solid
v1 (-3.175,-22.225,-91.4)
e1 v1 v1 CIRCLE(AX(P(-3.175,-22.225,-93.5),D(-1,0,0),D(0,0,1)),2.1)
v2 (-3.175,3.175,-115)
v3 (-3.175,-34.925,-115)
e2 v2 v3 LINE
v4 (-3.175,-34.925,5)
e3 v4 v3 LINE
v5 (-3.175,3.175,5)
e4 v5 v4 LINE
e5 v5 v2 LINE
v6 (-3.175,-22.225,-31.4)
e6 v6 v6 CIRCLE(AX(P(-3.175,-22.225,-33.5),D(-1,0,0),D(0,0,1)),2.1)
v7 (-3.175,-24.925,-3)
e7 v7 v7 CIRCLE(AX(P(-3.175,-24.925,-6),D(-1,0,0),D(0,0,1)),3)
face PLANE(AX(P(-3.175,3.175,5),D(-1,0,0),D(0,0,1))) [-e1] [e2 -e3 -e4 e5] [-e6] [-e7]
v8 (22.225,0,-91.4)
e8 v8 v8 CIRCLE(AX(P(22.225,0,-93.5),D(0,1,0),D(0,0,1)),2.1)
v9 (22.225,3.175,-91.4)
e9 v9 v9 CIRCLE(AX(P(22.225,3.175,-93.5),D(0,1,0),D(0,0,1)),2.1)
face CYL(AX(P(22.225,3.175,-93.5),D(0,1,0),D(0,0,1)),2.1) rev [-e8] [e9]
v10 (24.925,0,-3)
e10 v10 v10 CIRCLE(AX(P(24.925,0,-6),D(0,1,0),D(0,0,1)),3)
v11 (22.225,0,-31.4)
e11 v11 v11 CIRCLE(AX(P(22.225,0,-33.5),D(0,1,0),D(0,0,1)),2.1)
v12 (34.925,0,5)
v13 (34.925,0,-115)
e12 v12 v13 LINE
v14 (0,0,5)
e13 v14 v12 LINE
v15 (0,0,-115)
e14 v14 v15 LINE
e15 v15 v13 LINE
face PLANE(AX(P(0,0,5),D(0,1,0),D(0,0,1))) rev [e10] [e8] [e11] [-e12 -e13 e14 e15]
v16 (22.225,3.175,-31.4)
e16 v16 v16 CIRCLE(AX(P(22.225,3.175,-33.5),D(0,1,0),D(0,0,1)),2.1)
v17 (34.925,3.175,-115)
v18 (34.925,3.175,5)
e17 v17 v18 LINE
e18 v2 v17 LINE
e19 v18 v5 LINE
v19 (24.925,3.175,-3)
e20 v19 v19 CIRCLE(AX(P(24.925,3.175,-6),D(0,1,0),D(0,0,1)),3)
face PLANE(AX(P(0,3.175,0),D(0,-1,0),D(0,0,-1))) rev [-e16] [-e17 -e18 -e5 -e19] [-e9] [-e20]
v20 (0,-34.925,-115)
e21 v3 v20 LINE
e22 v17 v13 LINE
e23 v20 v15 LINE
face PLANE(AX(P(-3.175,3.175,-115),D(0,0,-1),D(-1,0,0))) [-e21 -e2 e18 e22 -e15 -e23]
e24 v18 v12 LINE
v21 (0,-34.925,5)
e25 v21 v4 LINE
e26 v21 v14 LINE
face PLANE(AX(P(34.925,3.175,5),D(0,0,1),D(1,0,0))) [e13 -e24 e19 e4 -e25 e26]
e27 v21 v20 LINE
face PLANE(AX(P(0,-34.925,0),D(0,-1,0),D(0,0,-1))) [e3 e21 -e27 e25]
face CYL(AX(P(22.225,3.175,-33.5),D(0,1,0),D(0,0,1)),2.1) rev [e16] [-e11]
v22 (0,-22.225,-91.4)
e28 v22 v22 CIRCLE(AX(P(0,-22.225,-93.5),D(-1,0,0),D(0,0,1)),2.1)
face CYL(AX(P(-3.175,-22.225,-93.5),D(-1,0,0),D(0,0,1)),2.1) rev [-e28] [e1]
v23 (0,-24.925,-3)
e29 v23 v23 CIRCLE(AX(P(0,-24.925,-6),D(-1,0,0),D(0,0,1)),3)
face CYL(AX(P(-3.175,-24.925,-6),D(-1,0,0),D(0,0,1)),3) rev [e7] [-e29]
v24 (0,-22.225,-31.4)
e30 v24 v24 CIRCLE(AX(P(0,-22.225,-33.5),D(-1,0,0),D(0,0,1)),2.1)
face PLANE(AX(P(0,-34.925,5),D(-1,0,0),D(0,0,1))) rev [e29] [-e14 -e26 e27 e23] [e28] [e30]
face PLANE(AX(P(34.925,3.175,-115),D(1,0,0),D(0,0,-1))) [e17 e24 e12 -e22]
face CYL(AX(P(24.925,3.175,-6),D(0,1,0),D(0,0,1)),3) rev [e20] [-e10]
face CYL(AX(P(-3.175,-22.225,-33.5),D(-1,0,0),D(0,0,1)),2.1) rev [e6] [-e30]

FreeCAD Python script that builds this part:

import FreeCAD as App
import Part
import Sketcher
from FreeCAD import Vector
Q = App.Units.Quantity

doc = App.newDocument("Part")
params = doc.addObject("Spreadsheet::Sheet", "Params")
for row, (alias, value) in enumerate([
    ("sketch1_height", "120 mm"),
    ("sketch1_width", "38.1 mm"),
    ("pad1_length", "38.1 mm"),
    ("sketch3_diameter", "4.2 mm"),
    ("hole_diameter", "4.2 mm"),
    ("sketch4_diameter", "6 mm"),
    ("hole2_diameter", "6 mm"),
    ("sketch5_diameter", "4.2 mm"),
    ("hole3_diameter", "4.2 mm"),
    ("hole3_depth", "38.1 mm"),
    ("sketch6_diameter", "6 mm"),
    ("hole4_diameter", "6 mm"),
    ("hole4_depth", "38.1 mm"),
    ("sketch7_diameter", "6 mm"),
    ("hole5_diameter", "6 mm"),
    ("hole5_depth", "38.1 mm"),
    ("sketch8_diameter", "4.2 mm"),
    ("hole6_diameter", "4.2 mm"),
    ("sketch9_diameter", "6 mm"),
    ("sketch9_diameter2", "4.2 mm"),
    ("pad2_length", "3.175 mm"),
    ("sketch10_diameter", "6 mm"),
    ("sketch10_diameter2", "4.2 mm"),
    ("pad3_length", "3.175 mm"),
], start=1):
    params.set(f"A{row}", alias)
    params.set(f"B{row}", "=" + value)
    params.setAlias(f"B{row}", alias)

body = doc.addObject("PartDesign::Body", "Body")

sketch1 = body.newObject("Sketcher::SketchObject", "Sketch")
sketch1.AttachmentSupport = (doc.getObject("XZ_Plane"), [""])
sketch1.MapMode = "FlatFace"
sketch1.AttachmentOffset = App.Placement(Vector(0, 0, 34.925), App.Rotation())
sketch1.addGeometry(Part.LineSegment(Vector(-3, 5, 0), Vector(-3, -115, 0)), False)
sketch1.addGeometry(Part.LineSegment(Vector(-3, -115, 0), Vector(35, -115, 0)), False)
sketch1.addGeometry(Part.LineSegment(Vector(35, -115, 0), Vector(35, 5, 0)), False)
sketch1.addGeometry(Part.LineSegment(Vector(35, 5, 0), Vector(-3, 5, 0)), False)
sketch1.addConstraint(Sketcher.Constraint("Coincident", 0, 2, 1, 1))
sketch1.addConstraint(Sketcher.Constraint("Coincident", 1, 2, 2, 1))
sketch1.addConstraint(Sketcher.Constraint("Coincident", 2, 2, 3, 1))
sketch1.addConstraint(Sketcher.Constraint("Coincident", 3, 2, 0, 1))
sketch1.addConstraint(Sketcher.Constraint("Vertical", 0))
sketch1.addConstraint(Sketcher.Constraint("Horizontal", 1))
sketch1.addConstraint(Sketcher.Constraint("Vertical", 2))
sketch1.addConstraint(Sketcher.Constraint("Horizontal", 3))
sketch1.addConstraint(Sketcher.Constraint("DistanceY", 0, 2, 0, 1, Q("120 mm")))
sketch1.addConstraint(Sketcher.Constraint("DistanceX", 1, 1, 1, 2, Q("38.1 mm")))
sketch1.addConstraint(Sketcher.Constraint("DistanceY", 0, 2, -1, 1, Q("115 mm")))
sketch1.addConstraint(Sketcher.Constraint("DistanceX", 0, 2, -1, 1, Q("3.175 mm")))
sketch1.setExpression("Constraints[8]", "Params.sketch1_height")
sketch1.setExpression("Constraints[9]", "Params.sketch1_width")
pad1 = body.newObject("PartDesign::Pad", "Pad")
pad1.Profile = sketch1
pad1.setExpression("Length", "Params.pad1_length")
pad1.Reversed = True

sketch2 = body.newObject("Sketcher::SketchObject", "Sketch001")
sketch2.AttachmentSupport = (doc.getObject("XY_Plane"), [""])
sketch2.MapMode = "FlatFace"
sketch2.AttachmentOffset = App.Placement(Vector(0, 0, -115), App.Rotation())
sketch2.addGeometry(Part.LineSegment(Vector(35, 0, 0), Vector(35, -35, 0)), False)
sketch2.addGeometry(Part.LineSegment(Vector(35, -35, 0), Vector(0, -35, 0)), False)
sketch2.addGeometry(Part.LineSegment(Vector(0, -35, 0), Vector(0, 0, 0)), False)
sketch2.addGeometry(Part.LineSegment(Vector(0, 0, 0), Vector(35, 0, 0)), False)
sketch2.addConstraint(Sketcher.Constraint("Coincident", 0, 2, 1, 1))
sketch2.addConstraint(Sketcher.Constraint("Coincident", 1, 2, 2, 1))
sketch2.addConstraint(Sketcher.Constraint("Coincident", 2, 2, 3, 1))
sketch2.addConstraint(Sketcher.Constraint("Coincident", 3, 2, 0, 1))
sketch2.addConstraint(Sketcher.Constraint("Vertical", 0))
sketch2.addConstraint(Sketcher.Constraint("Horizontal", 1))
sketch2.addConstraint(Sketcher.Constraint("Vertical", 2))
sketch2.addConstraint(Sketcher.Constraint("Horizontal", 3))
sketch2.addConstraint(Sketcher.Constraint("Coincident", 2, 2, -1, 1))
sketch2.addConstraint(Sketcher.Constraint("Equal", 3, 0))
sketch2.addConstraint(Sketcher.Constraint("DistanceX", 1, 2, 1, 1, Q("34.925 mm")))
pocket1 = body.newObject("PartDesign::Pocket", "Pocket")
pocket1.Profile = sketch2
pocket1.Type = "ThroughAll"
pocket1.Reversed = True

sketch3 = body.newObject("Sketcher::SketchObject", "Sketch002")
sketch3.AttachmentSupport = (doc.getObject("XZ_Plane"), [""])
sketch3.MapMode = "FlatFace"
sketch3.addGeometry(Part.Circle(Vector(5, -36, 0), Vector(0, 0, 1), 2.1), False)
sketch3.addGeometry(Part.Circle(Vector(5, -91, 0), Vector(0, 0, 1), 2.1), False)
sketch3.addConstraint(Sketcher.Constraint("Equal", 0, 1))
sketch3.addConstraint(Sketcher.Constraint("Vertical", 0, 3, 1, 3))
sketch3.addConstraint(Sketcher.Constraint("Diameter", 0, Q("4.2 mm")))
sketch3.addConstraint(Sketcher.Constraint("DistanceX", -1, 1, 0, 3, Q("5 mm")))
sketch3.addConstraint(Sketcher.Constraint("DistanceY", 0, 3, -1, 1, Q("35.97 mm")))
sketch3.addConstraint(Sketcher.Constraint("DistanceY", 1, 3, -1, 1, Q("91.03 mm")))
sketch3.setExpression("Constraints[2]", "Params.sketch3_diameter")
doc.recompute()
hole = body.newObject("PartDesign::Hole", "Hole")
hole.Profile = sketch3
hole.ThreadType = "None"
hole.setExpression("Diameter", "Params.hole_diameter")
hole.DepthType = "ThroughAll"

sketch4 = body.newObject("Sketcher::SketchObject", "Sketch003")
sketch4.AttachmentSupport = (doc.getObject("XZ_Plane"), [""])
sketch4.MapMode = "FlatFace"
sketch4.addGeometry(Part.Circle(Vector(22.2, -106.5, 0), Vector(0, 0, 1), 3), False)
sketch4.addGeometry(Part.Circle(Vector(22.2, -46.5, 0), Vector(0, 0, 1), 3), False)
sketch4.addConstraint(Sketcher.Constraint("Equal", 0, 1))
sketch4.addConstraint(Sketcher.Constraint("Vertical", 0, 3, 1, 3))
sketch4.addConstraint(Sketcher.Constraint("Diameter", 0, Q("6 mm")))
sketch4.addConstraint(Sketcher.Constraint("DistanceY", 0, 3, 1, 3, Q("60 mm")))
sketch4.addConstraint(Sketcher.Constraint("DistanceY", 0, 3, -1, 1, Q("106.5 mm")))
sketch4.addConstraint(Sketcher.Constraint("DistanceX", -1, 1, 0, 3, Q("22.225 mm")))
sketch4.setExpression("Constraints[2]", "Params.sketch4_diameter")
doc.recompute()
hole2 = body.newObject("PartDesign::Hole", "Hole001")
hole2.Profile = sketch4
hole2.ThreadType = "None"
hole2.setExpression("Diameter", "Params.hole2_diameter")
hole2.DepthType = "ThroughAll"

sketch5 = body.newObject("Sketcher::SketchObject", "Sketch004")
sketch5.AttachmentSupport = (doc.getObject("XZ_Plane"), [""])
sketch5.MapMode = "FlatFace"
sketch5.AttachmentOffset = App.Placement(Vector(0, 0, -3.175), App.Rotation())
sketch5.addGeometry(Part.Circle(Vector(22.2, -33.5, 0), Vector(0, 0, 1), 2.1), False)
sketch5.addGeometry(Part.Circle(Vector(22.2, -93.5, 0), Vector(0, 0, 1), 2.1), False)
sketch5.addGeometry(Part.Circle(Vector(29.3, -100.6, 0), Vector(0, 0, 1), 2.1), False)
sketch5.addGeometry(Part.Circle(Vector(29.3, -26.4, 0), Vector(0, 0, 1), 2.1), False)
sketch5.addConstraint(Sketcher.Constraint("Equal", 0, 1))
sketch5.addConstraint(Sketcher.Constraint("Equal", 1, 2))
sketch5.addConstraint(Sketcher.Constraint("Equal", 2, 3))
sketch5.addConstraint(Sketcher.Constraint("Vertical", 0, 3, 1, 3))
sketch5.addConstraint(Sketcher.Constraint("Vertical", 2, 3, 3, 3))
sketch5.addConstraint(Sketcher.Constraint("Diameter", 0, Q("4.2 mm")))
sketch5.addConstraint(Sketcher.Constraint("DistanceY", 1, 3, 0, 3, Q("60 mm")))
sketch5.addConstraint(Sketcher.Constraint("DistanceY", 0, 3, -1, 1, Q("33.5 mm")))
sketch5.addConstraint(Sketcher.Constraint("DistanceX", -1, 1, 0, 3, Q("22.225 mm")))
sketch5.addConstraint(Sketcher.Constraint("DistanceX", -1, 1, 2, 3, Q("29.296068 mm")))
sketch5.addConstraint(Sketcher.Constraint("DistanceY", 2, 3, -1, 1, Q("100.571068 mm")))
sketch5.addConstraint(Sketcher.Constraint("DistanceY", 3, 3, -1, 1, Q("26.428932 mm")))
sketch5.setExpression("Constraints[5]", "Params.sketch5_diameter")
doc.recompute()
hole3 = body.newObject("PartDesign::Hole", "Hole002")
hole3.Profile = sketch5
hole3.ThreadType = "None"
hole3.setExpression("Diameter", "Params.hole3_diameter")
hole3.DepthType = "Dimension"
hole3.setExpression("Depth", "Params.hole3_depth")
hole3.DrillPoint = "Flat"
hole3.Reversed = True

sketch6 = body.newObject("Sketcher::SketchObject", "Sketch005")
sketch6.AttachmentSupport = (doc.getObject("XZ_Plane"), [""])
sketch6.MapMode = "FlatFace"
sketch6.AttachmentOffset = App.Placement(Vector(0, 0, -3.175), App.Rotation())
sketch6.addGeometry(Part.Circle(Vector(24.9, -6, 0), Vector(0, 0, 1), 3), False)
sketch6.addConstraint(Sketcher.Constraint("Diameter", 0, Q("6 mm")))
sketch6.addConstraint(Sketcher.Constraint("DistanceY", 0, 3, -1, 1, Q("6 mm")))
sketch6.addConstraint(Sketcher.Constraint("DistanceX", -1, 1, 0, 3, Q("24.925 mm")))
sketch6.setExpression("Constraints[0]", "Params.sketch6_diameter")
doc.recompute()
hole4 = body.newObject("PartDesign::Hole", "Hole003")
hole4.Profile = sketch6
hole4.ThreadType = "None"
hole4.setExpression("Diameter", "Params.hole4_diameter")
hole4.DepthType = "Dimension"
hole4.setExpression("Depth", "Params.hole4_depth")
hole4.DrillPoint = "Flat"
hole4.Reversed = True

sketch7 = body.newObject("Sketcher::SketchObject", "Sketch006")
sketch7.AttachmentSupport = (doc.getObject("YZ_Plane"), [""])
sketch7.MapMode = "FlatFace"
sketch7.AttachmentOffset = App.Placement(Vector(0, 0, -3.175), App.Rotation())
sketch7.addGeometry(Part.Circle(Vector(-24.9, -6, 0), Vector(0, 0, 1), 3), False)
sketch7.addGeometry(Part.Circle(Vector(-22.2, -106.5, 0), Vector(0, 0, 1), 3), False)
sketch7.addGeometry(Part.Circle(Vector(-22.2, -46.5, 0), Vector(0, 0, 1), 3), False)
sketch7.addConstraint(Sketcher.Constraint("Equal", 0, 1))
sketch7.addConstraint(Sketcher.Constraint("Equal", 1, 2))
sketch7.addConstraint(Sketcher.Constraint("Vertical", 1, 3, 2, 3))
sketch7.addConstraint(Sketcher.Constraint("Diameter", 0, Q("6 mm")))
sketch7.addConstraint(Sketcher.Constraint("DistanceY", 0, 3, -1, 1, Q("6 mm")))
sketch7.addConstraint(Sketcher.Constraint("DistanceY", 1, 3, 2, 3, Q("60 mm")))
sketch7.addConstraint(Sketcher.Constraint("DistanceY", 1, 3, -1, 1, Q("106.5 mm")))
sketch7.addConstraint(Sketcher.Constraint("DistanceX", 0, 3, 1, 3, Q("2.7 mm")))
sketch7.addConstraint(Sketcher.Constraint("DistanceX", 0, 3, -1, 1, Q("24.925 mm")))
sketch7.setExpression("Constraints[3]", "Params.sketch7_diameter")
doc.recompute()
hole5 = body.newObject("PartDesign::Hole", "Hole004")
hole5.Profile = sketch7
hole5.ThreadType = "None"
hole5.setExpression("Diameter", "Params.hole5_diameter")
hole5.DepthType = "Dimension"
hole5.setExpression("Depth", "Params.hole5_depth")
hole5.DrillPoint = "Flat"
hole5.Reversed = True

sketch8 = body.newObject("Sketcher::SketchObject", "Sketch007")
sketch8.AttachmentSupport = (doc.getObject("YZ_Plane"), [""])
sketch8.MapMode = "FlatFace"
sketch8.AttachmentOffset = App.Placement(Vector(0, 0, -3.175), App.Rotation())
sketch8.addGeometry(Part.Circle(Vector(-22.2, -93.5, 0), Vector(0, 0, 1), 2.1), False)
sketch8.addGeometry(Part.Circle(Vector(-22.2, -33.5, 0), Vector(0, 0, 1), 2.1), False)
sketch8.addGeometry(Part.Circle(Vector(-5, -36, 0), Vector(0, 0, 1), 2.1), False)
sketch8.addGeometry(Part.Circle(Vector(-5, -91, 0), Vector(0, 0, 1), 2.1), False)
sketch8.addGeometry(Part.Circle(Vector(-29.3, -100.6, 0), Vector(0, 0, 1), 2.1), False)
sketch8.addGeometry(Part.Circle(Vector(-29.3, -26.4, 0), Vector(0, 0, 1), 2.1), False)
sketch8.addConstraint(Sketcher.Constraint("Equal", 0, 1))
sketch8.addConstraint(Sketcher.Constraint("Equal", 1, 2))
sketch8.addConstraint(Sketcher.Constraint("Equal", 2, 3))
sketch8.addConstraint(Sketcher.Constraint("Equal", 3, 4))
sketch8.addConstraint(Sketcher.Constraint("Equal", 4, 5))
sketch8.addConstraint(Sketcher.Constraint("Vertical", 0, 3, 1, 3))
sketch8.addConstraint(Sketcher.Constraint("Vertical", 2, 3, 3, 3))
sketch8.addConstraint(Sketcher.Constraint("Vertical", 4, 3, 5, 3))
sketch8.addConstraint(Sketcher.Constraint("Diameter", 0, Q("4.2 mm")))
sketch8.addConstraint(Sketcher.Constraint("DistanceX", 2, 3, -1, 1, Q("5 mm")))
sketch8.addConstraint(Sketcher.Constraint("DistanceY", 0, 3, 1, 3, Q("60 mm")))
sketch8.addConstraint(Sketcher.Constraint("DistanceY", 0, 3, -1, 1, Q("93.5 mm")))
sketch8.addConstraint(Sketcher.Constraint("DistanceY", 2, 3, -1, 1, Q("35.97 mm")))
sketch8.addConstraint(Sketcher.Constraint("DistanceY", 3, 3, -1, 1, Q("91.03 mm")))
sketch8.addConstraint(Sketcher.Constraint("DistanceX", 0, 3, -1, 1, Q("22.225 mm")))
sketch8.addConstraint(Sketcher.Constraint("DistanceX", 4, 3, -1, 1, Q("29.296068 mm")))
sketch8.addConstraint(Sketcher.Constraint("DistanceY", 4, 3, -1, 1, Q("100.571068 mm")))
sketch8.addConstraint(Sketcher.Constraint("DistanceY", 5, 3, -1, 1, Q("26.428932 mm")))
sketch8.setExpression("Constraints[8]", "Params.sketch8_diameter")
doc.recompute()
hole6 = body.newObject("PartDesign::Hole", "Hole005")
hole6.Profile = sketch8
hole6.ThreadType = "None"
hole6.setExpression("Diameter", "Params.hole6_diameter")
hole6.DepthType = "ThroughAll"
hole6.Reversed = True

sketch9 = body.newObject("Sketcher::SketchObject", "Sketch008")
sketch9.AttachmentSupport = (doc.getObject("XZ_Plane"), [""])
sketch9.MapMode = "FlatFace"
sketch9.AttachmentOffset = App.Placement(Vector(0, 0, -3.175), App.Rotation())
sketch9.addGeometry(Part.Circle(Vector(29.3, -26.4, 0), Vector(0, 0, 1), 2.1), False)
sketch9.addGeometry(Part.Circle(Vector(29.3, -100.6, 0), Vector(0, 0, 1), 2.1), False)
sketch9.addGeometry(Part.Circle(Vector(22.2, -106.5, 0), Vector(0, 0, 1), 3), False)
sketch9.addGeometry(Part.Circle(Vector(22.2, -46.5, 0), Vector(0, 0, 1), 3), False)
sketch9.addGeometry(Part.Circle(Vector(5, -36, 0), Vector(0, 0, 1), 2.1), False)
sketch9.addGeometry(Part.Circle(Vector(5, -91, 0), Vector(0, 0, 1), 2.1), False)
sketch9.addConstraint(Sketcher.Constraint("Equal", 0, 1))
sketch9.addConstraint(Sketcher.Constraint("Equal", 2, 3))
sketch9.addConstraint(Sketcher.Constraint("Equal", 1, 4))
sketch9.addConstraint(Sketcher.Constraint("Equal", 4, 5))
sketch9.addConstraint(Sketcher.Constraint("Vertical", 0, 3, 1, 3))
sketch9.addConstraint(Sketcher.Constraint("Vertical", 2, 3, 3, 3))
sketch9.addConstraint(Sketcher.Constraint("Vertical", 4, 3, 5, 3))
sketch9.addConstraint(Sketcher.Constraint("Diameter", 2, Q("6 mm")))
sketch9.addConstraint(Sketcher.Constraint("Diameter", 0, Q("4.2 mm")))
sketch9.addConstraint(Sketcher.Constraint("DistanceX", -1, 1, 4, 3, Q("5 mm")))
sketch9.addConstraint(Sketcher.Constraint("DistanceY", 2, 3, 3, 3, Q("60 mm")))
sketch9.addConstraint(Sketcher.Constraint("DistanceY", 2, 3, -1, 1, Q("106.5 mm")))
sketch9.addConstraint(Sketcher.Constraint("DistanceY", 4, 3, -1, 1, Q("35.97 mm")))
sketch9.addConstraint(Sketcher.Constraint("DistanceY", 5, 3, -1, 1, Q("91.03 mm")))
sketch9.addConstraint(Sketcher.Constraint("DistanceX", -1, 1, 2, 3, Q("22.225 mm")))
sketch9.addConstraint(Sketcher.Constraint("DistanceX", -1, 1, 0, 3, Q("29.296068 mm")))
sketch9.addConstraint(Sketcher.Constraint("DistanceY", 0, 3, -1, 1, Q("26.428932 mm")))
sketch9.addConstraint(Sketcher.Constraint("DistanceY", 1, 3, -1, 1, Q("100.571068 mm")))
sketch9.setExpression("Constraints[7]", "Params.sketch9_diameter")
sketch9.setExpression("Constraints[8]", "Params.sketch9_diameter2")
pad2 = body.newObject("PartDesign::Pad", "Pad001")
pad2.Profile = sketch9
pad2.setExpression("Length", "Params.pad2_length")

sketch10 = body.newObject("Sketcher::SketchObject", "Sketch009")
sketch10.AttachmentSupport = (doc.getObject("YZ_Plane"), [""])
sketch10.MapMode = "FlatFace"
sketch10.addGeometry(Part.Circle(Vector(-22.2, -106.5, 0), Vector(0, 0, 1), 3), False)
sketch10.addGeometry(Part.Circle(Vector(-29.3, -100.6, 0), Vector(0, 0, 1), 2.1), False)
sketch10.addGeometry(Part.Circle(Vector(-22.2, -46.5, 0), Vector(0, 0, 1), 3), False)
sketch10.addGeometry(Part.Circle(Vector(-29.3, -26.4, 0), Vector(0, 0, 1), 2.1), False)
sketch10.addGeometry(Part.Circle(Vector(-5, -36, 0), Vector(0, 0, 1), 2.1), False)
sketch10.addGeometry(Part.Circle(Vector(-5, -91, 0), Vector(0, 0, 1), 2.1), False)
sketch10.addConstraint(Sketcher.Constraint("Equal", 0, 2))
sketch10.addConstraint(Sketcher.Constraint("Equal", 1, 3))
sketch10.addConstraint(Sketcher.Constraint("Equal", 3, 4))
sketch10.addConstraint(Sketcher.Constraint("Equal", 4, 5))
sketch10.addConstraint(Sketcher.Constraint("Vertical", 0, 3, 2, 3))
sketch10.addConstraint(Sketcher.Constraint("Vertical", 1, 3, 3, 3))
sketch10.addConstraint(Sketcher.Constraint("Vertical", 4, 3, 5, 3))
sketch10.addConstraint(Sketcher.Constraint("Diameter", 0, Q("6 mm")))
sketch10.addConstraint(Sketcher.Constraint("Diameter", 1, Q("4.2 mm")))
sketch10.addConstraint(Sketcher.Constraint("DistanceX", 4, 3, -1, 1, Q("5 mm")))
sketch10.addConstraint(Sketcher.Constraint("DistanceY", 0, 3, 2, 3, Q("60 mm")))
sketch10.addConstraint(Sketcher.Constraint("DistanceY", 0, 3, -1, 1, Q("106.5 mm")))
sketch10.addConstraint(Sketcher.Constraint("DistanceY", 4, 3, -1, 1, Q("35.97 mm")))
sketch10.addConstraint(Sketcher.Constraint("DistanceY", 5, 3, -1, 1, Q("91.03 mm")))
sketch10.addConstraint(Sketcher.Constraint("DistanceX", 0, 3, -1, 1, Q("22.225 mm")))
sketch10.addConstraint(Sketcher.Constraint("DistanceX", 1, 3, -1, 1, Q("29.296068 mm")))
sketch10.addConstraint(Sketcher.Constraint("DistanceY", 1, 3, -1, 1, Q("100.571068 mm")))
sketch10.addConstraint(Sketcher.Constraint("DistanceY", 3, 3, -1, 1, Q("26.428932 mm")))
sketch10.setExpression("Constraints[7]", "Params.sketch10_diameter")
sketch10.setExpression("Constraints[8]", "Params.sketch10_diameter2")
pad3 = body.newObject("PartDesign::Pad", "Pad002")
pad3.Profile = sketch10
pad3.setExpression("Length", "Params.pad3_length")
pad3.Reversed = True

doc.recompute()
